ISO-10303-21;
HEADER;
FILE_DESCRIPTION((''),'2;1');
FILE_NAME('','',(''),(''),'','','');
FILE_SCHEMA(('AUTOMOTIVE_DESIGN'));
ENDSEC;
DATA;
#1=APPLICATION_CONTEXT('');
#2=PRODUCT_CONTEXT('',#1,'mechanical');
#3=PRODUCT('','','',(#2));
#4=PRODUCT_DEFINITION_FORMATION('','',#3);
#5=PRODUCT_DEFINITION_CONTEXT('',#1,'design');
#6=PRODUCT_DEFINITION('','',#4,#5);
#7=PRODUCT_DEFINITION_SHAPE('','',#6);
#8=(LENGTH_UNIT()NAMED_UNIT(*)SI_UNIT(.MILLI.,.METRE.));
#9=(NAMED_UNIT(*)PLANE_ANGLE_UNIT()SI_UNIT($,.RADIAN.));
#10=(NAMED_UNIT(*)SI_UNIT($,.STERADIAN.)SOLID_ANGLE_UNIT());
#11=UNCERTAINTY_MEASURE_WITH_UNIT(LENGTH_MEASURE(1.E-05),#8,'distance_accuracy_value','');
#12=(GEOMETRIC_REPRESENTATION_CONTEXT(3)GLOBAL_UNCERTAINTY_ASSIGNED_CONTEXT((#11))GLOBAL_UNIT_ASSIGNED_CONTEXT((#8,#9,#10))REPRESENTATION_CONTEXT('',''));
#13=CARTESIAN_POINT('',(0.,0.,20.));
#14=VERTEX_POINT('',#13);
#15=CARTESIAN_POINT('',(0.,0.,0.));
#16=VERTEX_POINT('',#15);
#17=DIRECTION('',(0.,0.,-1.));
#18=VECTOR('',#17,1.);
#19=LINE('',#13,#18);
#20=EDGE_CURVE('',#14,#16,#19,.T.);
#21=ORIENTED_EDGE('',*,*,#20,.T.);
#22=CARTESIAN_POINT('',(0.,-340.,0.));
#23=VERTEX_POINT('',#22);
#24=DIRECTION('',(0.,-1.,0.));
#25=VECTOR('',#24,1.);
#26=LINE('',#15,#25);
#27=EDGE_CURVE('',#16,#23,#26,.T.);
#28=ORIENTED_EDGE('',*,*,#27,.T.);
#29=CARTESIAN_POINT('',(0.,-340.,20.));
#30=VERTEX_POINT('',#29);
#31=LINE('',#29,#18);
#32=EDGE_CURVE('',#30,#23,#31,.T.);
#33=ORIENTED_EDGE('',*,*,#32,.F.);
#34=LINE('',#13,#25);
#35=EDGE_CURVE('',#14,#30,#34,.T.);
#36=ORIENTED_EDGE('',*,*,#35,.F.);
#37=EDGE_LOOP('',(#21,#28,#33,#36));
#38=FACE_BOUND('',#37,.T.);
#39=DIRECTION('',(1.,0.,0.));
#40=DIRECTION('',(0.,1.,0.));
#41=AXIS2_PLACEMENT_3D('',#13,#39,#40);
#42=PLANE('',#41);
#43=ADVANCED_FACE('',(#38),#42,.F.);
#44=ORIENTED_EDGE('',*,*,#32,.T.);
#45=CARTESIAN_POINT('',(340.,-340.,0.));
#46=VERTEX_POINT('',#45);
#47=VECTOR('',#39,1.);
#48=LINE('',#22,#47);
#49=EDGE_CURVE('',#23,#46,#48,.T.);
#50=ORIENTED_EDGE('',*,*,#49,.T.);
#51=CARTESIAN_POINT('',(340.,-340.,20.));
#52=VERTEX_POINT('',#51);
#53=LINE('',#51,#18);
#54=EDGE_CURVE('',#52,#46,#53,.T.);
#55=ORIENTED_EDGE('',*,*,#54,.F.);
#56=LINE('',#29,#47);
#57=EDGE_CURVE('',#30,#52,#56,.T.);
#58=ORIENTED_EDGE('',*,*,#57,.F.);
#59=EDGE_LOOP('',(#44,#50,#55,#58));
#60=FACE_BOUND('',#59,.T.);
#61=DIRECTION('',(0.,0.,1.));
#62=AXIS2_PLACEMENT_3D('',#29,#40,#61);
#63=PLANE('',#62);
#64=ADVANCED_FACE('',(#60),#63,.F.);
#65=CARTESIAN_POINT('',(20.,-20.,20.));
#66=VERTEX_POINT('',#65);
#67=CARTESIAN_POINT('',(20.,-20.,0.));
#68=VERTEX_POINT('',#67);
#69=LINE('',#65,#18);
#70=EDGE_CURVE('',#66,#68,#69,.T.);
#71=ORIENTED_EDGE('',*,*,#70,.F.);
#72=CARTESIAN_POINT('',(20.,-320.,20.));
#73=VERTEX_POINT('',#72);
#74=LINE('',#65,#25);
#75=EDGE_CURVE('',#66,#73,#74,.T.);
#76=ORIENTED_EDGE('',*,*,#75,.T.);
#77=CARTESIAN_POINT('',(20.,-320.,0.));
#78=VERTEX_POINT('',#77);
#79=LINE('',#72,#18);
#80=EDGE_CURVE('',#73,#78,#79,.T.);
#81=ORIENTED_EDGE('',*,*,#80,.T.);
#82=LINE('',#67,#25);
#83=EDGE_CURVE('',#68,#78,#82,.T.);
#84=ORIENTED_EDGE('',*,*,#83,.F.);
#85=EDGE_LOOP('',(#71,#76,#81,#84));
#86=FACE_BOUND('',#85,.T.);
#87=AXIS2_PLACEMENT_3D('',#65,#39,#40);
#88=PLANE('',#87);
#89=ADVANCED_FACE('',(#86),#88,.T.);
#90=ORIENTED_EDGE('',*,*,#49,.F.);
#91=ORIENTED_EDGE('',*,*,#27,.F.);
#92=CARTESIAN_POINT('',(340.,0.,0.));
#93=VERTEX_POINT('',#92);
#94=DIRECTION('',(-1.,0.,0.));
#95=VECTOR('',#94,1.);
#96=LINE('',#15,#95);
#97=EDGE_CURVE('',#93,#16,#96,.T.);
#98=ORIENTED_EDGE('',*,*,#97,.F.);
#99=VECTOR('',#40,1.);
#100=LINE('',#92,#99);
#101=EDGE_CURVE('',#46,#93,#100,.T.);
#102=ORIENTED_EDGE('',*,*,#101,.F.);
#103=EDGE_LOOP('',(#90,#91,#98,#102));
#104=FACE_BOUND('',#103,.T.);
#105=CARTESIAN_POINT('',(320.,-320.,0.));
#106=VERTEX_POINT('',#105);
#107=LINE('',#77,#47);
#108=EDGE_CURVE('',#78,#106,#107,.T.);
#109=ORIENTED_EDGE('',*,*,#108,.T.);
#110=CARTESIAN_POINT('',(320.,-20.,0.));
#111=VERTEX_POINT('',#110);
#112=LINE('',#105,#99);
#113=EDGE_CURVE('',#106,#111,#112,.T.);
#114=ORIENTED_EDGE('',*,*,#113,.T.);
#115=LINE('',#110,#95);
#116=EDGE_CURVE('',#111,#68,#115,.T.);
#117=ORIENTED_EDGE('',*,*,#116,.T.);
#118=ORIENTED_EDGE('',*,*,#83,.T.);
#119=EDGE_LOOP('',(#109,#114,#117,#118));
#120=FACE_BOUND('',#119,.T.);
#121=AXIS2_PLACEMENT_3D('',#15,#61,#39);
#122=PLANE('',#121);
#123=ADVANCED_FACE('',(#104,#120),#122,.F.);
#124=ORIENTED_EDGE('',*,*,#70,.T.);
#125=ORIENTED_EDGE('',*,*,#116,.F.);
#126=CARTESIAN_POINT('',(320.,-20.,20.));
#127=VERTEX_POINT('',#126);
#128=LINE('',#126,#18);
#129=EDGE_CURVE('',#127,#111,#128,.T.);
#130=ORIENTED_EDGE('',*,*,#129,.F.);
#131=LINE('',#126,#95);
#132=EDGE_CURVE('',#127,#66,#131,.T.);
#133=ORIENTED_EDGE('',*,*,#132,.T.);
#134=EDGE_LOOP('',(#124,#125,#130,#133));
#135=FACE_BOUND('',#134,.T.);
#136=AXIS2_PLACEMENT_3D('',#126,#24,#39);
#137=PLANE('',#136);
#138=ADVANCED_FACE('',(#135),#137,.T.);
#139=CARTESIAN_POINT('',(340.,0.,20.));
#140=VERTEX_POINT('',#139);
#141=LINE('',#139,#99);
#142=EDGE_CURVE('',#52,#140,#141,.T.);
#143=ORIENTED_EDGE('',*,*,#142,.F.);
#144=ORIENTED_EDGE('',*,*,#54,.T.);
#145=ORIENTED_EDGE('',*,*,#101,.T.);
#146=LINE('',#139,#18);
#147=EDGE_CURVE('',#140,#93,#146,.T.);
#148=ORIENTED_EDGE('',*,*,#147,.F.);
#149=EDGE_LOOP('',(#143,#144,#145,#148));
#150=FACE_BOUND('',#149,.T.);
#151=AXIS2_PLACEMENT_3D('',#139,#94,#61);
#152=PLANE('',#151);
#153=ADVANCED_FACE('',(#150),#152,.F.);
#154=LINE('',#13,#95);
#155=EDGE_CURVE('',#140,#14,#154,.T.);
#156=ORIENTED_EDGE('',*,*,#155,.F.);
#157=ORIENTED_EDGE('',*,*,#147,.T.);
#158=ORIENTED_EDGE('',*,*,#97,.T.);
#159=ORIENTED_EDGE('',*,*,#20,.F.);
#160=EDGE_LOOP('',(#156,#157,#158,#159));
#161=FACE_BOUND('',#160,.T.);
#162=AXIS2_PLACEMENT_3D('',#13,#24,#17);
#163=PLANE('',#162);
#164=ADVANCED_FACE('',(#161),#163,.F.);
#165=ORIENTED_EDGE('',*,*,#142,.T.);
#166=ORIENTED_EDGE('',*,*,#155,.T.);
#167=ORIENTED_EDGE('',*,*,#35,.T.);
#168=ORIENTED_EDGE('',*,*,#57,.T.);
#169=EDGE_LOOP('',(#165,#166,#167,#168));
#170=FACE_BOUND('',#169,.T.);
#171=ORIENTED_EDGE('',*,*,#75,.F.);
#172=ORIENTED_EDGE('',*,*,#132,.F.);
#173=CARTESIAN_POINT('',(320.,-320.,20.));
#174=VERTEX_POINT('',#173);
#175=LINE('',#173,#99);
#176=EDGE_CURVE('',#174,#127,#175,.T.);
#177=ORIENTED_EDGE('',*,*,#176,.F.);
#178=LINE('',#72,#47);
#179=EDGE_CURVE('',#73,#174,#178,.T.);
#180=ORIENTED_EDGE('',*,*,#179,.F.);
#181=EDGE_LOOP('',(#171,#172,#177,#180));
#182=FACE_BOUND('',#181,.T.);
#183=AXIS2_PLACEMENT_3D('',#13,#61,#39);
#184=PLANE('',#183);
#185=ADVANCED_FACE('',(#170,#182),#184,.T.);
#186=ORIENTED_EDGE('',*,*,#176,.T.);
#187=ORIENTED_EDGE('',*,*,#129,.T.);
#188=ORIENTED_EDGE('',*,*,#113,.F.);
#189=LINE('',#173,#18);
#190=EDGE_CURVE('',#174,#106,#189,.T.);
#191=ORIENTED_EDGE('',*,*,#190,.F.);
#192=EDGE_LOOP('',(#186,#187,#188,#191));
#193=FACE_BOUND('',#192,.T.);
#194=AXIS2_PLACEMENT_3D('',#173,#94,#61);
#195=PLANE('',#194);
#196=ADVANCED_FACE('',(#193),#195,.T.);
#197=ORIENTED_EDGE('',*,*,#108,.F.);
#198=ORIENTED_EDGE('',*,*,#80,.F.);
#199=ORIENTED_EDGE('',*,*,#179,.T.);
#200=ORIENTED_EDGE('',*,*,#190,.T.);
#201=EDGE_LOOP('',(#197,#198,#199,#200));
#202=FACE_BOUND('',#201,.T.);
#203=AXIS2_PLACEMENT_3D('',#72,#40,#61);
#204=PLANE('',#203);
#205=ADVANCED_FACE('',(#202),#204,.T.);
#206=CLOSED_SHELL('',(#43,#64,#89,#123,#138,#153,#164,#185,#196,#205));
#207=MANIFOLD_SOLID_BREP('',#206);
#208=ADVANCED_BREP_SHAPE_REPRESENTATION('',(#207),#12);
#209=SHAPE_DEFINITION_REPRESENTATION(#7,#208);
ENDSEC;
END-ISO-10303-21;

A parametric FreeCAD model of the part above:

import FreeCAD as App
import Part
import Sketcher

V = App.Vector


def add_polygon(sketch, points):
    """Adds a closed chain of lines whose ends are joined by coincident constraints."""
    first, n = sketch.GeometryCount, len(points)
    for a, b in zip(points, points[1:] + points[:1]):
        sketch.addGeometry(Part.LineSegment(App.Vector(*a, 0), App.Vector(*b, 0)), False)
    for i in range(n):
        sketch.addConstraint(Sketcher.Constraint("Coincident", first + i, 2, first + (i + 1) % n, 1))

doc = App.newDocument("Part")
body = doc.addObject("PartDesign::Body", "Body")

sketch1 = doc.addObject("Sketcher::SketchObject", "Sketch")
body.addObject(sketch1)
sketch1.AttachmentSupport = (doc.XY_Plane, [""])
sketch1.MapMode = "FlatFace"
add_polygon(sketch1, [(0, 0), (0, -340), (340, -340), (340, 0)])
add_polygon(sketch1, [(320, -320), (20, -320), (20, -20), (320, -20)])
sketch1.addConstraint([
    Sketcher.Constraint("Vertical", 0),
    Sketcher.Constraint("Horizontal", 1),
    Sketcher.Constraint("Vertical", 2),
    Sketcher.Constraint("Horizontal", 3),
    Sketcher.Constraint("Horizontal", 4),
    Sketcher.Constraint("Vertical", 5),
    Sketcher.Constraint("Horizontal", 6),
    Sketcher.Constraint("Vertical", 7),
    Sketcher.Constraint("Coincident", 3, 2, -1, 1),
    Sketcher.Constraint("Equal", 3, 0),
    Sketcher.Constraint("Equal", 6, 5),
    Sketcher.Constraint("DistanceX", 1, 1, 1, 2, 340.0),
    Sketcher.Constraint("DistanceX", 4, 2, 4, 1, 300.0),
    Sketcher.Constraint("DistanceX", -1, 1, 4, 2, 20.0),
    Sketcher.Constraint("DistanceY", 4, 2, -1, 1, 320.0),
])
pad1 = doc.addObject("PartDesign::Pad", "Pad")
body.addObject(pad1)
pad1.Profile = sketch1
pad1.Length = 20

doc.recompute()
